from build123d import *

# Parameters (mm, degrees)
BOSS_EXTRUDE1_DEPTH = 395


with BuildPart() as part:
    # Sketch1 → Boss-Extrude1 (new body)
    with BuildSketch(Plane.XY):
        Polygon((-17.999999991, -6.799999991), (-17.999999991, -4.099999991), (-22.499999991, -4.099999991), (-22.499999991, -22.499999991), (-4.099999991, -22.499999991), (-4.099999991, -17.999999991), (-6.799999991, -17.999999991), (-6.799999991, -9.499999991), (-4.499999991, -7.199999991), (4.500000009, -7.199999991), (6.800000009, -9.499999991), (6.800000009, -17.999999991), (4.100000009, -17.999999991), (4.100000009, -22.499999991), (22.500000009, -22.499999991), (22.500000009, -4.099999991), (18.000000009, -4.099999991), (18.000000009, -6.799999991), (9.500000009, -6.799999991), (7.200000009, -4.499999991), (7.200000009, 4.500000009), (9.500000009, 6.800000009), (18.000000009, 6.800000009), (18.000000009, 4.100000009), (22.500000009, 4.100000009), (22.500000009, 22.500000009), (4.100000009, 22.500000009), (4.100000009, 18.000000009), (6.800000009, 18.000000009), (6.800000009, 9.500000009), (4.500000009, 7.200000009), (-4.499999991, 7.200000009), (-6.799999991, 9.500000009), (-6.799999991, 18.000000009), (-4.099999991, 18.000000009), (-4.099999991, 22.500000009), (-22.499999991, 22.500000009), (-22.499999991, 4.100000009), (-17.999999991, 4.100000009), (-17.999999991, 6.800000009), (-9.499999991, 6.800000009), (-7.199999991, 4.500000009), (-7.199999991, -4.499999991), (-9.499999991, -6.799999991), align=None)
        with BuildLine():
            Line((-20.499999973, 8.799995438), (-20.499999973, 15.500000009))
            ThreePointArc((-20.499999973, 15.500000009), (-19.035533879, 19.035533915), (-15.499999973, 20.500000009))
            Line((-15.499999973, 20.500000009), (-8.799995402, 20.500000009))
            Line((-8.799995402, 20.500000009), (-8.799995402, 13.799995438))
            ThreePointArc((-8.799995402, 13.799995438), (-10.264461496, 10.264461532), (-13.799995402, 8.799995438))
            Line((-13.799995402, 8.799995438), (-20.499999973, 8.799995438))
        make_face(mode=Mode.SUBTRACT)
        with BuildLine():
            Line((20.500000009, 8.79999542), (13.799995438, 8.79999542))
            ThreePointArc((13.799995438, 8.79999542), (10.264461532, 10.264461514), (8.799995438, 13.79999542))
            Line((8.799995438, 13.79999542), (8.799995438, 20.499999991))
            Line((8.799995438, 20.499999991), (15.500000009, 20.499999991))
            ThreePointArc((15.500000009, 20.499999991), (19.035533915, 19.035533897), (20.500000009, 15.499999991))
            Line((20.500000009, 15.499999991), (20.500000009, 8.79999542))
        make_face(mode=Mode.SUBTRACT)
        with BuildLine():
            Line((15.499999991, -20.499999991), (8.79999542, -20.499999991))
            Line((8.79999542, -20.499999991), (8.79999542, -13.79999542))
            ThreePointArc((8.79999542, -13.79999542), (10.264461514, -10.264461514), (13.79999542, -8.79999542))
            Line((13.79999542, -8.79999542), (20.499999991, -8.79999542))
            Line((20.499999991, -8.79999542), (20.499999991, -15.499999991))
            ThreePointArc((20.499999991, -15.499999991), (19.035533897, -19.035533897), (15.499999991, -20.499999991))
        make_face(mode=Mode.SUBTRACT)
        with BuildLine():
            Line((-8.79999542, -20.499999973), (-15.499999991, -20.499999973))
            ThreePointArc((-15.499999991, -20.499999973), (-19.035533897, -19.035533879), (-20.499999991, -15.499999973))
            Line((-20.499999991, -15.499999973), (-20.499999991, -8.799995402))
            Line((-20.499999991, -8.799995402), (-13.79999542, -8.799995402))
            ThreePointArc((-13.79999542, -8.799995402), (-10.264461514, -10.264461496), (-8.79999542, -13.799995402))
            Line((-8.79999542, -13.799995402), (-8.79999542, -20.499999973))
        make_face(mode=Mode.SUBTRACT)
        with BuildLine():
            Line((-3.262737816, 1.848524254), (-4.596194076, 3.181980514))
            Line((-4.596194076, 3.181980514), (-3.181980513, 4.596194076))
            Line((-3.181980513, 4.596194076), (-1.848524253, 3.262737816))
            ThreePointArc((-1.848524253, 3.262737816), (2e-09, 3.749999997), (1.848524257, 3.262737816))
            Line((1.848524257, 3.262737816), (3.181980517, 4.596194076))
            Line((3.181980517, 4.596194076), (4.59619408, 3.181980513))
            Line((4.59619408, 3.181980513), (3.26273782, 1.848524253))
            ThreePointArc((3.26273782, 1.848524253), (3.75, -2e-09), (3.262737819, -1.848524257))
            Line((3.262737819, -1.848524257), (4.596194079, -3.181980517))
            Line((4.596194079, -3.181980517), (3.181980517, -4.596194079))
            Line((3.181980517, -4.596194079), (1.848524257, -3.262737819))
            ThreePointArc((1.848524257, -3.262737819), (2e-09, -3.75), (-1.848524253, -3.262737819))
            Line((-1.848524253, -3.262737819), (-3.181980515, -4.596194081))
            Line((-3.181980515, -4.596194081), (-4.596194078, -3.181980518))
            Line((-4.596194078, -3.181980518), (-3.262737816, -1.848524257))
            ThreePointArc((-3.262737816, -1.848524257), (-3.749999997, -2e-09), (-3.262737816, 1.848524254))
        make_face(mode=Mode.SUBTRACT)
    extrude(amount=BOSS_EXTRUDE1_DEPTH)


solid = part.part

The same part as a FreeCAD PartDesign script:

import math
import FreeCAD as App
import Part
import Sketcher
from FreeCAD import Vector

doc = App.newDocument("Part")
body = doc.addObject("PartDesign::Body", "Body")

sketch1 = body.newObject("Sketcher::SketchObject", "Sketch")
sketch1.AttachmentSupport = (doc.getObject("XY_Plane"), [""])
sketch1.MapMode = "FlatFace"
sketch1.addGeometry([
    Part.LineSegment(Vector(-18, -6.8, 0), Vector(-18, -4.1, 0)),
    Part.LineSegment(Vector(-18, -4.1, 0), Vector(-22.5, -4.1, 0)),
    Part.LineSegment(Vector(-22.5, -4.1, 0), Vector(-22.5, -22.5, 0)),
    Part.LineSegment(Vector(-22.5, -22.5, 0), Vector(-4.1, -22.5, 0)),
    Part.LineSegment(Vector(-4.1, -22.5, 0), Vector(-4.1, -18, 0)),
    Part.LineSegment(Vector(-4.1, -18, 0), Vector(-6.8, -18, 0)),
    Part.LineSegment(Vector(-6.8, -18, 0), Vector(-6.8, -9.5, 0)),
    Part.LineSegment(Vector(-6.8, -9.5, 0), Vector(-4.5, -7.2, 0)),
    Part.LineSegment(Vector(-4.5, -7.2, 0), Vector(4.5, -7.2, 0)),
    Part.LineSegment(Vector(4.5, -7.2, 0), Vector(6.8, -9.5, 0)),
    Part.LineSegment(Vector(6.8, -9.5, 0), Vector(6.8, -18, 0)),
    Part.LineSegment(Vector(6.8, -18, 0), Vector(4.1, -18, 0)),
    Part.LineSegment(Vector(4.1, -18, 0), Vector(4.1, -22.5, 0)),
    Part.LineSegment(Vector(4.1, -22.5, 0), Vector(22.5, -22.5, 0)),
    Part.LineSegment(Vector(22.5, -22.5, 0), Vector(22.5, -4.1, 0)),
    Part.LineSegment(Vector(22.5, -4.1, 0), Vector(18, -4.1, 0)),
    Part.LineSegment(Vector(18, -4.1, 0), Vector(18, -6.8, 0)),
    Part.LineSegment(Vector(18, -6.8, 0), Vector(9.5, -6.8, 0)),
    Part.LineSegment(Vector(9.5, -6.8, 0), Vector(7.2, -4.5, 0)),
    Part.LineSegment(Vector(7.2, -4.5, 0), Vector(7.2, 4.5, 0)),
    Part.LineSegment(Vector(7.2, 4.5, 0), Vector(9.5, 6.8, 0)),
    Part.LineSegment(Vector(9.5, 6.8, 0), Vector(18, 6.8, 0)),
    Part.LineSegment(Vector(18, 6.8, 0), Vector(18, 4.1, 0)),
    Part.LineSegment(Vector(18, 4.1, 0), Vector(22.5, 4.1, 0)),
    Part.LineSegment(Vector(22.5, 4.1, 0), Vector(22.5, 22.5, 0)),
    Part.LineSegment(Vector(22.5, 22.5, 0), Vector(4.1, 22.5, 0)),
    Part.LineSegment(Vector(4.1, 22.5, 0), Vector(4.1, 18, 0)),
    Part.LineSegment(Vector(4.1, 18, 0), Vector(6.8, 18, 0)),
    Part.LineSegment(Vector(6.8, 18, 0), Vector(6.8, 9.5, 0)),
    Part.LineSegment(Vector(6.8, 9.5, 0), Vector(4.5, 7.2, 0)),
    Part.LineSegment(Vector(4.5, 7.2, 0), Vector(-4.5, 7.2, 0)),
    Part.LineSegment(Vector(-4.5, 7.2, 0), Vector(-6.8, 9.5, 0)),
    Part.LineSegment(Vector(-6.8, 9.5, 0), Vector(-6.8, 18, 0)),
    Part.LineSegment(Vector(-6.8, 18, 0), Vector(-4.1, 18, 0)),
    Part.LineSegment(Vector(-4.1, 18, 0), Vector(-4.1, 22.5, 0)),
    Part.LineSegment(Vector(-4.1, 22.5, 0), Vector(-22.5, 22.5, 0)),
    Part.LineSegment(Vector(-22.5, 22.5, 0), Vector(-22.5, 4.1, 0)),
    Part.LineSegment(Vector(-22.5, 4.1, 0), Vector(-18, 4.1, 0)),
    Part.LineSegment(Vector(-18, 4.1, 0), Vector(-18, 6.8, 0)),
    Part.LineSegment(Vector(-18, 6.8, 0), Vector(-9.5, 6.8, 0)),
    Part.LineSegment(Vector(-9.5, 6.8, 0), Vector(-7.2, 4.5, 0)),
    Part.LineSegment(Vector(-7.2, 4.5, 0), Vector(-7.2, -4.5, 0)),
    Part.LineSegment(Vector(-7.2, -4.5, 0), Vector(-9.5, -6.8, 0)),
    Part.LineSegment(Vector(-9.5, -6.8, 0), Vector(-18, -6.8, 0)),
    Part.LineSegment(Vector(-8.8, -13.8, 0), Vector(-8.8, -20.5, 0)),
    Part.LineSegment(Vector(-8.8, -20.5, 0), Vector(-15.5, -20.5, 0)),
    Part.ArcOfCircle(Part.Circle(Vector(-15.5, -15.5, 0), Vector(0, 0, 1), 5), math.radians(180), math.radians(270)),
    Part.LineSegment(Vector(-20.5, -15.5, 0), Vector(-20.5, -8.8, 0)),
    Part.LineSegment(Vector(-20.5, -8.8, 0), Vector(-13.8, -8.8, 0)),
    Part.ArcOfCircle(Part.Circle(Vector(-13.8, -13.8, 0), Vector(0, 0, 1), 5), math.radians(0), math.radians(90)),
    Part.ArcOfCircle(Part.Circle(Vector(0, 0, 0), Vector(0, 0, 1), 3.7), math.radians(150), math.radians(210)),
    Part.LineSegment(Vector(-3.3, 1.8, 0), Vector(-4.6, 3.2, 0)),
    Part.LineSegment(Vector(-4.6, 3.2, 0), Vector(-3.2, 4.6, 0)),
    Part.LineSegment(Vector(-3.2, 4.6, 0), Vector(-1.8, 3.3, 0)),
    Part.ArcOfCircle(Part.Circle(Vector(0, 0, 0), Vector(0, 0, 1), 3.7), math.radians(60), math.radians(120)),
    Part.LineSegment(Vector(1.8, 3.3, 0), Vector(3.2, 4.6, 0)),
    Part.LineSegment(Vector(3.2, 4.6, 0), Vector(4.6, 3.2, 0)),
    Part.LineSegment(Vector(4.6, 3.2, 0), Vector(3.3, 1.8, 0)),
    Part.ArcOfCircle(Part.Circle(Vector(0, 0, 0), Vector(0, 0, 1), 3.8), math.radians(-30), math.radians(30)),
    Part.LineSegment(Vector(3.3, -1.8, 0), Vector(4.6, -3.2, 0)),
    Part.LineSegment(Vector(4.6, -3.2, 0), Vector(3.2, -4.6, 0)),
    Part.LineSegment(Vector(3.2, -4.6, 0), Vector(1.8, -3.3, 0)),
    Part.ArcOfCircle(Part.Circle(Vector(0, 0, 0), Vector(0, 0, 1), 3.7), math.radians(-120), math.radians(-60)),
    Part.LineSegment(Vector(-1.8, -3.3, 0), Vector(-3.2, -4.6, 0)),
    Part.LineSegment(Vector(-3.2, -4.6, 0), Vector(-4.6, -3.2, 0)),
    Part.LineSegment(Vector(-4.6, -3.2, 0), Vector(-3.3, -1.8, 0)),
    Part.ArcOfCircle(Part.Circle(Vector(15.5, -15.5, 0), Vector(0, 0, 1), 5), math.radians(-90), math.radians(0)),
    Part.LineSegment(Vector(15.5, -20.5, 0), Vector(8.8, -20.5, 0)),
    Part.LineSegment(Vector(8.8, -20.5, 0), Vector(8.8, -13.8, 0)),
    Part.ArcOfCircle(Part.Circle(Vector(13.8, -13.8, 0), Vector(0, 0, 1), 5), math.radians(90), math.radians(180)),
    Part.LineSegment(Vector(13.8, -8.8, 0), Vector(20.5, -8.8, 0)),
    Part.LineSegment(Vector(20.5, -8.8, 0), Vector(20.5, -15.5, 0)),
    Part.LineSegment(Vector(-13.8, 8.8, 0), Vector(-20.5, 8.8, 0)),
    Part.LineSegment(Vector(-20.5, 8.8, 0), Vector(-20.5, 15.5, 0)),
    Part.ArcOfCircle(Part.Circle(Vector(-15.5, 15.5, 0), Vector(0, 0, 1), 5), math.radians(90), math.radians(180)),
    Part.LineSegment(Vector(-15.5, 20.5, 0), Vector(-8.8, 20.5, 0)),
    Part.LineSegment(Vector(-8.8, 20.5, 0), Vector(-8.8, 13.8, 0)),
    Part.ArcOfCircle(Part.Circle(Vector(-13.8, 13.8, 0), Vector(0, 0, 1), 5), math.radians(-90), math.radians(0)),
    Part.LineSegment(Vector(20.5, 15.5, 0), Vector(20.5, 8.8, 0)),
    Part.LineSegment(Vector(20.5, 8.8, 0), Vector(13.8, 8.8, 0)),
    Part.ArcOfCircle(Part.Circle(Vector(13.8, 13.8, 0), Vector(0, 0, 1), 5), math.radians(180), math.radians(270)),
    Part.LineSegment(Vector(8.8, 13.8, 0), Vector(8.8, 20.5, 0)),
    Part.LineSegment(Vector(8.8, 20.5, 0), Vector(15.5, 20.5, 0)),
    Part.ArcOfCircle(Part.Circle(Vector(15.5, 15.5, 0), Vector(0, 0, 1), 5), math.radians(0), math.radians(90)),
], False)
sketch1.addConstraint([
    Sketcher.Constraint("Coincident", 0, 2, 1, 1),
    Sketcher.Constraint("Coincident", 1, 2, 2, 1),
    Sketcher.Constraint("Coincident", 2, 2, 3, 1),
    Sketcher.Constraint("Coincident", 3, 2, 4, 1),
    Sketcher.Constraint("Coincident", 4, 2, 5, 1),
    Sketcher.Constraint("Coincident", 5, 2, 6, 1),
    Sketcher.Constraint("Coincident", 6, 2, 7, 1),
    Sketcher.Constraint("Coincident", 7, 2, 8, 1),
    Sketcher.Constraint("Coincident", 8, 2, 9, 1),
    Sketcher.Constraint("Coincident", 9, 2, 10, 1),
    Sketcher.Constraint("Coincident", 10, 2, 11, 1),
    Sketcher.Constraint("Coincident", 11, 2, 12, 1),
    Sketcher.Constraint("Coincident", 12, 2, 13, 1),
    Sketcher.Constraint("Coincident", 13, 2, 14, 1),
    Sketcher.Constraint("Coincident", 14, 2, 15, 1),
    Sketcher.Constraint("Coincident", 15, 2, 16, 1),
    Sketcher.Constraint("Coincident", 16, 2, 17, 1),
    Sketcher.Constraint("Coincident", 17, 2, 18, 1),
    Sketcher.Constraint("Coincident", 18, 2, 19, 1),
    Sketcher.Constraint("Coincident", 19, 2, 20, 1),
    Sketcher.Constraint("Coincident", 20, 2, 21, 1),
    Sketcher.Constraint("Coincident", 21, 2, 22, 1),
    Sketcher.Constraint("Coincident", 22, 2, 23, 1),
    Sketcher.Constraint("Coincident", 23, 2, 24, 1),
    Sketcher.Constraint("Coincident", 24, 2, 25, 1),
    Sketcher.Constraint("Coincident", 25, 2, 26, 1),
    Sketcher.Constraint("Coincident", 26, 2, 27, 1),
    Sketcher.Constraint("Coincident", 27, 2, 28, 1),
    Sketcher.Constraint("Coincident", 28, 2, 29, 1),
    Sketcher.Constraint("Coincident", 29, 2, 30, 1),
    Sketcher.Constraint("Coincident", 30, 2, 31, 1),
    Sketcher.Constraint("Coincident", 31, 2, 32, 1),
    Sketcher.Constraint("Coincident", 32, 2, 33, 1),
    Sketcher.Constraint("Coincident", 33, 2, 34, 1),
    Sketcher.Constraint("Coincident", 34, 2, 35, 1),
    Sketcher.Constraint("Coincident", 35, 2, 36, 1),
    Sketcher.Constraint("Coincident", 36, 2, 37, 1),
    Sketcher.Constraint("Coincident", 37, 2, 38, 1),
    Sketcher.Constraint("Coincident", 38, 2, 39, 1),
    Sketcher.Constraint("Coincident", 39, 2, 40, 1),
    Sketcher.Constraint("Coincident", 40, 2, 41, 1),
    Sketcher.Constraint("Coincident", 41, 2, 42, 1),
    Sketcher.Constraint("Coincident", 42, 2, 43, 1),
    Sketcher.Constraint("Coincident", 43, 2, 0, 1),
    Sketcher.Constraint("Coincident", 44, 2, 45, 1),
    Sketcher.Constraint("Tangent", 45, 2, 46, 2),
    Sketcher.Constraint("Tangent", 46, 1, 47, 1),
    Sketcher.Constraint("Coincident", 47, 2, 48, 1),
    Sketcher.Constraint("Tangent", 48, 2, 49, 2),
    Sketcher.Constraint("Tangent", 49, 1, 44, 1),
    Sketcher.Constraint("Coincident", 50, 1, 51, 1),
    Sketcher.Constraint("Coincident", 51, 2, 52, 1),
    Sketcher.Constraint("Coincident", 52, 2, 53, 1),
    Sketcher.Constraint("Coincident", 53, 2, 54, 2),
    Sketcher.Constraint("Coincident", 54, 1, 55, 1),
    Sketcher.Constraint("Coincident", 55, 2, 56, 1),
    Sketcher.Constraint("Coincident", 56, 2, 57, 1),
    Sketcher.Constraint("Coincident", 57, 2, 58, 2),
    Sketcher.Constraint("Coincident", 58, 1, 59, 1),
    Sketcher.Constraint("Coincident", 59, 2, 60, 1),
    Sketcher.Constraint("Coincident", 60, 2, 61, 1),
    Sketcher.Constraint("Coincident", 61, 2, 62, 2),
    Sketcher.Constraint("Coincident", 62, 1, 63, 1),
    Sketcher.Constraint("Coincident", 63, 2, 64, 1),
    Sketcher.Constraint("Coincident", 64, 2, 65, 1),
    Sketcher.Constraint("Coincident", 65, 2, 50, 2),
    Sketcher.Constraint("Tangent", 66, 1, 67, 1),
    Sketcher.Constraint("Coincident", 67, 2, 68, 1),
    Sketcher.Constraint("Tangent", 68, 2, 69, 2),
    Sketcher.Constraint("Tangent", 69, 1, 70, 1),
    Sketcher.Constraint("Coincident", 70, 2, 71, 1),
    Sketcher.Constraint("Tangent", 71, 2, 66, 2),
    Sketcher.Constraint("Coincident", 72, 2, 73, 1),
    Sketcher.Constraint("Tangent", 73, 2, 74, 2),
    Sketcher.Constraint("Tangent", 74, 1, 75, 1),
    Sketcher.Constraint("Coincident", 75, 2, 76, 1),
    Sketcher.Constraint("Tangent", 76, 2, 77, 2),
    Sketcher.Constraint("Tangent", 77, 1, 72, 1),
    Sketcher.Constraint("Coincident", 78, 2, 79, 1),
    Sketcher.Constraint("Tangent", 79, 2, 80, 2),
    Sketcher.Constraint("Tangent", 80, 1, 81, 1),
    Sketcher.Constraint("Coincident", 81, 2, 82, 1),
    Sketcher.Constraint("Tangent", 82, 2, 83, 2),
    Sketcher.Constraint("Tangent", 83, 1, 78, 1),
    Sketcher.Constraint("Vertical", 0),
    Sketcher.Constraint("Horizontal", 1),
    Sketcher.Constraint("Vertical", 2),
    Sketcher.Constraint("Horizontal", 3),
    Sketcher.Constraint("Vertical", 4),
    Sketcher.Constraint("Horizontal", 5),
    Sketcher.Constraint("Vertical", 6),
    Sketcher.Constraint("Horizontal", 8),
    Sketcher.Constraint("Vertical", 10),
    Sketcher.Constraint("Horizontal", 11),
    Sketcher.Constraint("Vertical", 12),
    Sketcher.Constraint("Horizontal", 13),
    Sketcher.Constraint("Vertical", 14),
    Sketcher.Constraint("Horizontal", 15),
    Sketcher.Constraint("Vertical", 16),
    Sketcher.Constraint("Horizontal", 17),
    Sketcher.Constraint("Vertical", 19),
    Sketcher.Constraint("Horizontal", 21),
    Sketcher.Constraint("Vertical", 22),
    Sketcher.Constraint("Horizontal", 23),
    Sketcher.Constraint("Vertical", 24),
    Sketcher.Constraint("Horizontal", 25),
    Sketcher.Constraint("Vertical", 26),
    Sketcher.Constraint("Horizontal", 27),
    Sketcher.Constraint("Vertical", 28),
    Sketcher.Constraint("Horizontal", 30),
    Sketcher.Constraint("Vertical", 32),
    Sketcher.Constraint("Horizontal", 33),
    Sketcher.Constraint("Vertical", 34),
    Sketcher.Constraint("Horizontal", 35),
    Sketcher.Constraint("Vertical", 36),
    Sketcher.Constraint("Horizontal", 37),
    Sketcher.Constraint("Vertical", 38),
    Sketcher.Constraint("Horizontal", 39),
    Sketcher.Constraint("Vertical", 41),
    Sketcher.Constraint("Horizontal", 43),
    Sketcher.Constraint("Vertical", 44),
    Sketcher.Constraint("Horizontal", 45),
    Sketcher.Constraint("Vertical", 47),
    Sketcher.Constraint("Horizontal", 48),
    Sketcher.Constraint("Horizontal", 67),
    Sketcher.Constraint("Vertical", 68),
    Sketcher.Constraint("Horizontal", 70),
    Sketcher.Constraint("Vertical", 71),
    Sketcher.Constraint("Horizontal", 72),
    Sketcher.Constraint("Vertical", 73),
    Sketcher.Constraint("Horizontal", 75),
    Sketcher.Constraint("Vertical", 76),
    Sketcher.Constraint("Vertical", 78),
    Sketcher.Constraint("Horizontal", 79),
    Sketcher.Constraint("Vertical", 81),
    Sketcher.Constraint("Horizontal", 82),
    Sketcher.Constraint("Coincident", 50, 3, -1, 1),
    Sketcher.Constraint("Coincident", 54, 3, -1, 1),
    Sketcher.Constraint("Coincident", 58, 3, -1, 1),
    Sketcher.Constraint("Coincident", 62, 3, -1, 1),
    Sketcher.Constraint("Equal", 46, 49),
    Sketcher.Constraint("Equal", 50, 54),
    Sketcher.Constraint("Equal", 54, 58),
    Sketcher.Constraint("Equal", 58, 62),
    Sketcher.Constraint("Equal", 49, 66),
    Sketcher.Constraint("Equal", 66, 69),
    Sketcher.Constraint("Equal", 69, 74),
    Sketcher.Constraint("Equal", 74, 77),
    Sketcher.Constraint("Equal", 77, 80),
    Sketcher.Constraint("Equal", 80, 83),
    Sketcher.Constraint("Symmetric", 66, 3, 74, 3, -1, 1),
    Sketcher.Constraint("Symmetric", 69, 3, 77, 3, -1, 1),
    Sketcher.Constraint("Symmetric", 49, 3, 80, 3, -1, 1),
    Sketcher.Constraint("Symmetric", 46, 3, 83, 3, -1, 1),
    Sketcher.Constraint("Symmetric", 0, 2, 22, 2, -1, 1),
    Sketcher.Constraint("Symmetric", 2, 2, 24, 2, -1, 1),
    Sketcher.Constraint("Symmetric", 4, 2, 26, 2, -1, 1),
    Sketcher.Constraint("Symmetric", 6, 2, 28, 2, -1, 1),
    Sketcher.Constraint("Symmetric", 7, 2, 29, 2, -1, 1),
    Sketcher.Constraint("Symmetric", 9, 2, 31, 2, -1, 1),
    Sketcher.Constraint("Symmetric", 11, 2, 33, 2, -1, 1),
    Sketcher.Constraint("Symmetric", 13, 2, 35, 2, -1, 1),
    Sketcher.Constraint("Symmetric", 15, 2, 37, 2, -1, 1),
    Sketcher.Constraint("Symmetric", 17, 2, 39, 2, -1, 1),
    Sketcher.Constraint("Symmetric", 18, 2, 40, 2, -1, 1),
    Sketcher.Constraint("Symmetric", 20, 2, 42, 2, -1, 1),
    Sketcher.Constraint("Symmetric", 51, 2, 59, 2, -1, 1),
    Sketcher.Constraint("Symmetric", 52, 2, 60, 2, -1, 1),
    Sketcher.Constraint("Symmetric", 55, 2, 63, 2, -1, 1),
    Sketcher.Constraint("Symmetric", 56, 2, 64, 2, -1, 1),
    Sketcher.Constraint("Symmetric", 46, 3, 66, 3, -2),
    Sketcher.Constraint("Symmetric", 49, 3, 69, 3, -2),
    Sketcher.Constraint("Symmetric", 6, 2, 9, 2, -2),
    Sketcher.Constraint("Symmetric", 4, 2, 11, 2, -2),
    Sketcher.Constraint("Symmetric", 2, 2, 13, 2, -2),
    Sketcher.Constraint("Symmetric", 0, 2, 15, 2, -2),
    Sketcher.Constraint("Symmetric", 20, 2, 39, 2, -2),
    Sketcher.Constraint("Symmetric", 52, 2, 55, 2, -2),
    Sketcher.Constraint("Symmetric", 51, 2, 56, 2, -2),
    Sketcher.Constraint("Perpendicular", 7, 9),
    Sketcher.Constraint("Parallel", 9, 18),
    Sketcher.Constraint("Perpendicular", 18, 20),
    Sketcher.Constraint("Perpendicular", 29, 31),
    Sketcher.Constraint("Perpendicular", 40, 42),
    Sketcher.Constraint("Perpendicular", 42, 51),
    Sketcher.Constraint("Perpendicular", 51, 52),
    Sketcher.Constraint("Perpendicular", 52, 53),
    Sketcher.Constraint("Perpendicular", 53, 55),
    Sketcher.Constraint("Perpendicular", 55, 56),
    Sketcher.Constraint("Perpendicular", 56, 57),
    Sketcher.Constraint("Perpendicular", 57, 59),
    Sketcher.Constraint("Perpendicular", 60, 61),
    Sketcher.Constraint("Perpendicular", 61, 63),
    Sketcher.Constraint("Perpendicular", 64, 65),
    Sketcher.Constraint("Equal", 33, 0),
    Sketcher.Constraint("Equal", 35, 2),
    Sketcher.Constraint("Equal", 37, 4),
    Sketcher.Constraint("Equal", 43, 6),
    Sketcher.Constraint("Equal", 30, 19),
    Sketcher.Constraint("Equal", 82, 44),
    Sketcher.Constraint("Equal", 9, 18),
    Sketcher.Constraint("Equal", 51, 53),
    Sketcher.Constraint("Radius", 46, 5.0),
    Sketcher.Constraint("DistanceX", 8, 1, 8, 2, 9.0),
    Sketcher.Constraint("Radius", 50, 3.75),
    Sketcher.Constraint("Distance", 52, 2.0),
    Sketcher.Constraint("DistanceX", 1, 2, 1, 1, 4.5),
    Sketcher.Constraint("DistanceX", 3, 1, 3, 2, 18.4),
    Sketcher.Constraint("DistanceX", 5, 2, 5, 1, 2.7),
    Sketcher.Constraint("DistanceX", 17, 2, 17, 1, 8.5),
    Sketcher.Constraint("DistanceX", 0, 2, -1, 1, 18.0),
    Sketcher.Constraint("DistanceX", 46, 3, -1, 1, 15.5),
    Sketcher.Constraint("DistanceY", 46, 3, -1, 1, 15.5),
    Sketcher.Constraint("Distance", 51, 1.885792),
    Sketcher.Constraint("DistanceX", 45, 2, 45, 1, 6.700005),
])
pad1 = body.newObject("PartDesign::Pad", "Pad")
pad1.Profile = sketch1
pad1.Length = 395

doc.recompute()
